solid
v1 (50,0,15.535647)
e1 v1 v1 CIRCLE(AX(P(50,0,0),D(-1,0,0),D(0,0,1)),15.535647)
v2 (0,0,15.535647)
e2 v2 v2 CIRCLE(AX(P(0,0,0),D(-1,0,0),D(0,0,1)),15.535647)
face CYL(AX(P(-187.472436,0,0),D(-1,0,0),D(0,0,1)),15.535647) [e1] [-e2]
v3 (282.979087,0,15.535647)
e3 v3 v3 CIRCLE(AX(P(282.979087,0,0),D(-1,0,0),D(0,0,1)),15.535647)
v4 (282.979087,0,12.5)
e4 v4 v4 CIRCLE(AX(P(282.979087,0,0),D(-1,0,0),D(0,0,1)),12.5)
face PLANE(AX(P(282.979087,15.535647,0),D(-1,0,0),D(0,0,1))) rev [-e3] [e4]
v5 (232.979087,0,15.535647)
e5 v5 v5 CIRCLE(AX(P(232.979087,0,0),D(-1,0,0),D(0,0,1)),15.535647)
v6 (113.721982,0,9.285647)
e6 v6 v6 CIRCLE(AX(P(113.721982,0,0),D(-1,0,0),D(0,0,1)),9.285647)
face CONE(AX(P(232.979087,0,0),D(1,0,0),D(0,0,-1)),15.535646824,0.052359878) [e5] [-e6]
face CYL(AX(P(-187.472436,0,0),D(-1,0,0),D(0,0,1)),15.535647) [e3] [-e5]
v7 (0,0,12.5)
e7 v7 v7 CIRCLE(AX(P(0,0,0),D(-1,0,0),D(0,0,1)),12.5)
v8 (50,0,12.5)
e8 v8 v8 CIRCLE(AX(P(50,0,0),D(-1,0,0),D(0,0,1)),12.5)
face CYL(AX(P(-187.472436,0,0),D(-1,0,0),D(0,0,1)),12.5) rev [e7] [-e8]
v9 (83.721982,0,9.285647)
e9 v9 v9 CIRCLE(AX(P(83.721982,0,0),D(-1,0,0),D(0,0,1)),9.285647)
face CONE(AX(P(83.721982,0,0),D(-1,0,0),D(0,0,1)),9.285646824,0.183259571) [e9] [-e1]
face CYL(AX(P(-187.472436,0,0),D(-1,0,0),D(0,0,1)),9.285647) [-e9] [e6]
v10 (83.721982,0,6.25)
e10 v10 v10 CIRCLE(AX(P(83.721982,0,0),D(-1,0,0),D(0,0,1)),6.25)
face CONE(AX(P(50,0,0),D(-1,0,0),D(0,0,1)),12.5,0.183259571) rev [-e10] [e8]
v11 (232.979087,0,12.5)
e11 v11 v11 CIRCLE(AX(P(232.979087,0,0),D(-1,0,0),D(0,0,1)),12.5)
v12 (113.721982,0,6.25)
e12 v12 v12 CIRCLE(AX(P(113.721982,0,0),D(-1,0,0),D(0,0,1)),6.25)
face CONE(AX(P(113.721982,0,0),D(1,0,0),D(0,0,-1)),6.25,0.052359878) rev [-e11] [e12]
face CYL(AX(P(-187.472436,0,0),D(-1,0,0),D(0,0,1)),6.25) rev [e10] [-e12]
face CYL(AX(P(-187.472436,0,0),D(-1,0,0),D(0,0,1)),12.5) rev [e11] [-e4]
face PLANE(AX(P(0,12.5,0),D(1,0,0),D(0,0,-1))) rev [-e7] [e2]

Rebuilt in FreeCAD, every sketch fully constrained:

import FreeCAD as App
import Part
import Sketcher

V = App.Vector
Q = App.Units.Quantity

doc = App.newDocument("Part")
body = doc.addObject("PartDesign::Body", "Body")

sketch1 = doc.addObject("Sketcher::SketchObject", "Sketch")
body.addObject(sketch1)
sketch1.AttachmentSupport = (doc.XY_Plane, [""])
sketch1.MapMode = "FlatFace"
sketch1.addGeometry([
    Part.LineSegment(V(0, 12.5, 0), V(50, 12.5, 0)),
    Part.LineSegment(V(50, 12.5, 0), V(83.721982, 6.25, 0)),
    Part.LineSegment(V(83.721982, 6.25, 0), V(113.721982, 6.25, 0)),
    Part.LineSegment(V(113.721982, 6.25, 0), V(232.979087, 12.5, 0)),
    Part.LineSegment(V(232.979087, 12.5, 0), V(282.979087, 12.5, 0)),
    Part.LineSegment(V(282.979087, 12.5, 0), V(282.979087, 15.535647, 0)),
    Part.LineSegment(V(282.979087, 15.535647, 0), V(232.979087, 15.535647, 0)),
    Part.LineSegment(V(232.979087, 15.535647, 0), V(113.721982, 9.285647, 0)),
    Part.LineSegment(V(113.721982, 9.285647, 0), V(83.721982, 9.285647, 0)),
    Part.LineSegment(V(83.721982, 9.285647, 0), V(50, 15.535647, 0)),
    Part.LineSegment(V(50, 15.535647, 0), V(0, 15.535647, 0)),
    Part.LineSegment(V(0, 15.535647, 0), V(0, 12.5, 0)),
], False)
sketch1.addConstraint([
    Sketcher.Constraint("Coincident", 0, 2, 1, 1),
    Sketcher.Constraint("Coincident", 1, 2, 2, 1),
    Sketcher.Constraint("Coincident", 2, 2, 3, 1),
    Sketcher.Constraint("Coincident", 3, 2, 4, 1),
    Sketcher.Constraint("Coincident", 4, 2, 5, 1),
    Sketcher.Constraint("Coincident", 5, 2, 6, 1),
    Sketcher.Constraint("Coincident", 6, 2, 7, 1),
    Sketcher.Constraint("Coincident", 7, 2, 8, 1),
    Sketcher.Constraint("Coincident", 8, 2, 9, 1),
    Sketcher.Constraint("Coincident", 9, 2, 10, 1),
    Sketcher.Constraint("Coincident", 10, 2, 11, 1),
    Sketcher.Constraint("Coincident", 11, 2, 0, 1),
    Sketcher.Constraint("Horizontal", 0),
    Sketcher.Constraint("Horizontal", 2),
    Sketcher.Constraint("Horizontal", 4),
    Sketcher.Constraint("Vertical", 5),
    Sketcher.Constraint("Horizontal", 6),
    Sketcher.Constraint("Horizontal", 8),
    Sketcher.Constraint("Horizontal", 10),
    Sketcher.Constraint("Vertical", 11),
    Sketcher.Constraint("PointOnObject", 10, 2, -2),
    Sketcher.Constraint("Parallel", 3, 7),
    Sketcher.Constraint("Parallel", 1, 9),
    Sketcher.Constraint("Horizontal", 0, 2, 3, 2),
    Sketcher.Constraint("Horizontal", 6, 2, 9, 2),
    Sketcher.Constraint("Vertical", 3, 2, 6, 2),
    Sketcher.Constraint("Vertical", 2, 2, 7, 2),
    Sketcher.Constraint("Vertical", 1, 2, 8, 2),
    Sketcher.Constraint("Equal", 0, 4),
    Sketcher.Constraint("DistanceX", 0, 1, 0, 2, 50.0),
    Sketcher.Constraint("DistanceX", 2, 1, 2, 2, 30.0),
    Sketcher.Constraint("Angle", 3, Q("3 deg")),
    Sketcher.Constraint("Angle", 1, Q("-10.5 deg")),
    Sketcher.Constraint("DistanceY", -1, 1, 0, 2, 12.5),
    Sketcher.Constraint("DistanceY", -1, 1, 1, 2, 6.25),
    Sketcher.Constraint("DistanceY", 5, 1, 5, 2, 3.035647),
])
revolution = doc.addObject("PartDesign::Revolution", "Revolution")
body.addObject(revolution)
revolution.Profile = sketch1
revolution.ReferenceAxis = (sketch1, ["H_Axis"])
revolution.Angle = 360

doc.recompute()
